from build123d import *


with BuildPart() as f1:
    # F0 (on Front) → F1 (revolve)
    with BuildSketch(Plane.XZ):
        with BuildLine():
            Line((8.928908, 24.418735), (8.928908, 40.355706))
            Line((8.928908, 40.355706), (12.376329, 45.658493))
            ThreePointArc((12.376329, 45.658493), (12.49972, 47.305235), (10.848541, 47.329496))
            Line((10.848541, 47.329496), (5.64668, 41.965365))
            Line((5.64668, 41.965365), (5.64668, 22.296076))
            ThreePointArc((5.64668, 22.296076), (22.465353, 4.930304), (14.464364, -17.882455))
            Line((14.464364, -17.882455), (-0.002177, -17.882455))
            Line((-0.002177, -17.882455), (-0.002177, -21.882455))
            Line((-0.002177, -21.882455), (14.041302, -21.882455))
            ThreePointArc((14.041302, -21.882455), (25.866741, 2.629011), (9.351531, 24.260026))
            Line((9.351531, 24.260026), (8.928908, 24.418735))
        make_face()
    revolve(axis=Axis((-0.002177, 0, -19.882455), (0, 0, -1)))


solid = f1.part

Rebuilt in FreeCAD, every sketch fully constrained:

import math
import FreeCAD as App
import Part
import Sketcher
from FreeCAD import Vector

doc = App.newDocument("Part")
params = doc.addObject("Spreadsheet::Sheet", "Params")
for row, (alias, value) in enumerate([
    ("sketch1_radius", "23.000001 mm"),
    ("sketch1_radius2", "26 mm"),
    ("sketch1_height", "4 mm"),
    ("revolution_angle", "360 deg"),
], start=1):
    params.set(f"A{row}", alias)
    params.set(f"B{row}", "=" + value)
    params.setAlias(f"B{row}", alias)

body = doc.addObject("PartDesign::Body", "Body")

sketch1 = body.newObject("Sketcher::SketchObject", "Sketch")
sketch1.AttachmentSupport = (doc.getObject("XZ_Plane"), [""])
sketch1.MapMode = "FlatFace"
sketch1.addGeometry(Part.LineSegment(Vector(8.928908, 24.418735, 0), Vector(8.928908, 40.355706, 0)), False)
sketch1.addGeometry(Part.LineSegment(Vector(8.928908, 40.355706, 0), Vector(12.376329, 45.658493, 0)), False)
sketch1.addGeometry(Part.ArcOfCircle(Part.Circle(Vector(11.662708, 46.539959, 0), Vector(0, 0, 1), 1.134124), math.radians(-51.006904), math.radians(135.87988)), False)
sketch1.addGeometry(Part.LineSegment(Vector(10.848541, 47.329496, 0), Vector(5.64668, 41.965365, 0)), False)
sketch1.addGeometry(Part.LineSegment(Vector(5.64668, 41.965365, 0), Vector(5.64668, 22.296076, 0)), False)
sketch1.addGeometry(Part.ArcOfCircle(Part.Circle(Vector(-0.000001, -0.000001, 0), Vector(0, 0, 1), 23.000001), math.radians(-51.032062), math.radians(75.788151)), False)
sketch1.addGeometry(Part.LineSegment(Vector(14.464364, -17.882455, 0), Vector(-0.002177, -17.882455, 0)), False)
sketch1.addGeometry(Part.LineSegment(Vector(-0.002177, -17.882455, 0), Vector(-0.002177, -21.882455, 0)), False)
sketch1.addGeometry(Part.LineSegment(Vector(-0.002177, -21.882455, 0), Vector(14.041302, -21.882455, 0)), False)
sketch1.addGeometry(Part.ArcOfCircle(Part.Circle(Vector(0, 0, 0), Vector(0, 0, 1), 26), math.radians(-57.312952), math.radians(68.919806)), False)
sketch1.addGeometry(Part.LineSegment(Vector(9.351531, 24.260026, 0), Vector(8.928908, 24.418735, 0)), False)
sketch1.addGeometry(Part.LineSegment(Vector(-0.002177, 47.329496, 0), Vector(-0.002177, -21.882455, 0)), True)
sketch1.addConstraint(Sketcher.Constraint("Coincident", 0, 2, 1, 1))
sketch1.addConstraint(Sketcher.Constraint("Coincident", 1, 2, 2, 1))
sketch1.addConstraint(Sketcher.Constraint("Coincident", 2, 2, 3, 1))
sketch1.addConstraint(Sketcher.Constraint("Coincident", 3, 2, 4, 1))
sketch1.addConstraint(Sketcher.Constraint("Coincident", 4, 2, 5, 2))
sketch1.addConstraint(Sketcher.Constraint("Coincident", 5, 1, 6, 1))
sketch1.addConstraint(Sketcher.Constraint("Coincident", 6, 2, 7, 1))
sketch1.addConstraint(Sketcher.Constraint("Coincident", 7, 2, 8, 1))
sketch1.addConstraint(Sketcher.Constraint("Coincident", 8, 2, 9, 1))
sketch1.addConstraint(Sketcher.Constraint("Coincident", 9, 2, 10, 1))
sketch1.addConstraint(Sketcher.Constraint("Coincident", 10, 2, 0, 1))
sketch1.addConstraint(Sketcher.Constraint("Vertical", 0))
sketch1.addConstraint(Sketcher.Constraint("Vertical", 4))
sketch1.addConstraint(Sketcher.Constraint("Horizontal", 6))
sketch1.addConstraint(Sketcher.Constraint("Vertical", 7))
sketch1.addConstraint(Sketcher.Constraint("Horizontal", 8))
sketch1.addConstraint(Sketcher.Constraint("Vertical", 11))
sketch1.addConstraint(Sketcher.Constraint("Coincident", 5, 3, -1, 1))
sketch1.addConstraint(Sketcher.Constraint("Coincident", 9, 3, -1, 1))
sketch1.addConstraint(Sketcher.Constraint("Coincident", 11, 2, 7, 2))
sketch1.addConstraint(Sketcher.Constraint("Radius", 5, 23.000001))
sketch1.addConstraint(Sketcher.Constraint("Radius", 9, 26.0))
sketch1.addConstraint(Sketcher.Constraint("DistanceY", 7, 2, 7, 1, 4.0))
sketch1.addConstraint(Sketcher.Constraint("Radius", 2, 1.134124))
sketch1.addConstraint(Sketcher.Constraint("DistanceX", 6, 2, 6, 1, 14.466541))
sketch1.addConstraint(Sketcher.Constraint("DistanceX", 8, 1, 8, 2, 14.043479))
sketch1.addConstraint(Sketcher.Constraint("DistanceY", 0, 1, 0, 2, 15.936971))
sketch1.addConstraint(Sketcher.Constraint("DistanceY", 4, 2, 4, 1, 19.669289))
sketch1.addConstraint(Sketcher.Constraint("DistanceY", 11, 2, 11, 1, 69.211951))
sketch1.addConstraint(Sketcher.Constraint("DistanceX", 0, 2, 2, 3, 2.7338))
sketch1.addConstraint(Sketcher.Constraint("Distance", 10, 0.451441))
sketch1.addConstraint(Sketcher.Constraint("DistanceY", -1, 1, 2, 3, 46.539959))
sketch1.addConstraint(Sketcher.Constraint("DistanceX", -1, 1, 1, 2, 12.376329))
sketch1.addConstraint(Sketcher.Constraint("DistanceX", -1, 1, 2, 2, 10.848541))
sketch1.addConstraint(Sketcher.Constraint("DistanceX", -1, 1, 3, 2, 5.64668))
sketch1.addConstraint(Sketcher.Constraint("DistanceX", -1, 1, 9, 2, 9.351531))
sketch1.addConstraint(Sketcher.Constraint("DistanceX", 5, 3, 2, 3, 11.662709))
sketch1.setExpression("Constraints[20]", "Params.sketch1_radius")
sketch1.setExpression("Constraints[21]", "Params.sketch1_radius2")
sketch1.setExpression("Constraints[22]", "Params.sketch1_height")
revolution = body.newObject("PartDesign::Revolution", "Revolution")
revolution.Profile = sketch1
revolution.ReferenceAxis = (sketch1, ["Axis0"])
revolution.setExpression("Angle", "Params.revolution_angle")

doc.recompute()
